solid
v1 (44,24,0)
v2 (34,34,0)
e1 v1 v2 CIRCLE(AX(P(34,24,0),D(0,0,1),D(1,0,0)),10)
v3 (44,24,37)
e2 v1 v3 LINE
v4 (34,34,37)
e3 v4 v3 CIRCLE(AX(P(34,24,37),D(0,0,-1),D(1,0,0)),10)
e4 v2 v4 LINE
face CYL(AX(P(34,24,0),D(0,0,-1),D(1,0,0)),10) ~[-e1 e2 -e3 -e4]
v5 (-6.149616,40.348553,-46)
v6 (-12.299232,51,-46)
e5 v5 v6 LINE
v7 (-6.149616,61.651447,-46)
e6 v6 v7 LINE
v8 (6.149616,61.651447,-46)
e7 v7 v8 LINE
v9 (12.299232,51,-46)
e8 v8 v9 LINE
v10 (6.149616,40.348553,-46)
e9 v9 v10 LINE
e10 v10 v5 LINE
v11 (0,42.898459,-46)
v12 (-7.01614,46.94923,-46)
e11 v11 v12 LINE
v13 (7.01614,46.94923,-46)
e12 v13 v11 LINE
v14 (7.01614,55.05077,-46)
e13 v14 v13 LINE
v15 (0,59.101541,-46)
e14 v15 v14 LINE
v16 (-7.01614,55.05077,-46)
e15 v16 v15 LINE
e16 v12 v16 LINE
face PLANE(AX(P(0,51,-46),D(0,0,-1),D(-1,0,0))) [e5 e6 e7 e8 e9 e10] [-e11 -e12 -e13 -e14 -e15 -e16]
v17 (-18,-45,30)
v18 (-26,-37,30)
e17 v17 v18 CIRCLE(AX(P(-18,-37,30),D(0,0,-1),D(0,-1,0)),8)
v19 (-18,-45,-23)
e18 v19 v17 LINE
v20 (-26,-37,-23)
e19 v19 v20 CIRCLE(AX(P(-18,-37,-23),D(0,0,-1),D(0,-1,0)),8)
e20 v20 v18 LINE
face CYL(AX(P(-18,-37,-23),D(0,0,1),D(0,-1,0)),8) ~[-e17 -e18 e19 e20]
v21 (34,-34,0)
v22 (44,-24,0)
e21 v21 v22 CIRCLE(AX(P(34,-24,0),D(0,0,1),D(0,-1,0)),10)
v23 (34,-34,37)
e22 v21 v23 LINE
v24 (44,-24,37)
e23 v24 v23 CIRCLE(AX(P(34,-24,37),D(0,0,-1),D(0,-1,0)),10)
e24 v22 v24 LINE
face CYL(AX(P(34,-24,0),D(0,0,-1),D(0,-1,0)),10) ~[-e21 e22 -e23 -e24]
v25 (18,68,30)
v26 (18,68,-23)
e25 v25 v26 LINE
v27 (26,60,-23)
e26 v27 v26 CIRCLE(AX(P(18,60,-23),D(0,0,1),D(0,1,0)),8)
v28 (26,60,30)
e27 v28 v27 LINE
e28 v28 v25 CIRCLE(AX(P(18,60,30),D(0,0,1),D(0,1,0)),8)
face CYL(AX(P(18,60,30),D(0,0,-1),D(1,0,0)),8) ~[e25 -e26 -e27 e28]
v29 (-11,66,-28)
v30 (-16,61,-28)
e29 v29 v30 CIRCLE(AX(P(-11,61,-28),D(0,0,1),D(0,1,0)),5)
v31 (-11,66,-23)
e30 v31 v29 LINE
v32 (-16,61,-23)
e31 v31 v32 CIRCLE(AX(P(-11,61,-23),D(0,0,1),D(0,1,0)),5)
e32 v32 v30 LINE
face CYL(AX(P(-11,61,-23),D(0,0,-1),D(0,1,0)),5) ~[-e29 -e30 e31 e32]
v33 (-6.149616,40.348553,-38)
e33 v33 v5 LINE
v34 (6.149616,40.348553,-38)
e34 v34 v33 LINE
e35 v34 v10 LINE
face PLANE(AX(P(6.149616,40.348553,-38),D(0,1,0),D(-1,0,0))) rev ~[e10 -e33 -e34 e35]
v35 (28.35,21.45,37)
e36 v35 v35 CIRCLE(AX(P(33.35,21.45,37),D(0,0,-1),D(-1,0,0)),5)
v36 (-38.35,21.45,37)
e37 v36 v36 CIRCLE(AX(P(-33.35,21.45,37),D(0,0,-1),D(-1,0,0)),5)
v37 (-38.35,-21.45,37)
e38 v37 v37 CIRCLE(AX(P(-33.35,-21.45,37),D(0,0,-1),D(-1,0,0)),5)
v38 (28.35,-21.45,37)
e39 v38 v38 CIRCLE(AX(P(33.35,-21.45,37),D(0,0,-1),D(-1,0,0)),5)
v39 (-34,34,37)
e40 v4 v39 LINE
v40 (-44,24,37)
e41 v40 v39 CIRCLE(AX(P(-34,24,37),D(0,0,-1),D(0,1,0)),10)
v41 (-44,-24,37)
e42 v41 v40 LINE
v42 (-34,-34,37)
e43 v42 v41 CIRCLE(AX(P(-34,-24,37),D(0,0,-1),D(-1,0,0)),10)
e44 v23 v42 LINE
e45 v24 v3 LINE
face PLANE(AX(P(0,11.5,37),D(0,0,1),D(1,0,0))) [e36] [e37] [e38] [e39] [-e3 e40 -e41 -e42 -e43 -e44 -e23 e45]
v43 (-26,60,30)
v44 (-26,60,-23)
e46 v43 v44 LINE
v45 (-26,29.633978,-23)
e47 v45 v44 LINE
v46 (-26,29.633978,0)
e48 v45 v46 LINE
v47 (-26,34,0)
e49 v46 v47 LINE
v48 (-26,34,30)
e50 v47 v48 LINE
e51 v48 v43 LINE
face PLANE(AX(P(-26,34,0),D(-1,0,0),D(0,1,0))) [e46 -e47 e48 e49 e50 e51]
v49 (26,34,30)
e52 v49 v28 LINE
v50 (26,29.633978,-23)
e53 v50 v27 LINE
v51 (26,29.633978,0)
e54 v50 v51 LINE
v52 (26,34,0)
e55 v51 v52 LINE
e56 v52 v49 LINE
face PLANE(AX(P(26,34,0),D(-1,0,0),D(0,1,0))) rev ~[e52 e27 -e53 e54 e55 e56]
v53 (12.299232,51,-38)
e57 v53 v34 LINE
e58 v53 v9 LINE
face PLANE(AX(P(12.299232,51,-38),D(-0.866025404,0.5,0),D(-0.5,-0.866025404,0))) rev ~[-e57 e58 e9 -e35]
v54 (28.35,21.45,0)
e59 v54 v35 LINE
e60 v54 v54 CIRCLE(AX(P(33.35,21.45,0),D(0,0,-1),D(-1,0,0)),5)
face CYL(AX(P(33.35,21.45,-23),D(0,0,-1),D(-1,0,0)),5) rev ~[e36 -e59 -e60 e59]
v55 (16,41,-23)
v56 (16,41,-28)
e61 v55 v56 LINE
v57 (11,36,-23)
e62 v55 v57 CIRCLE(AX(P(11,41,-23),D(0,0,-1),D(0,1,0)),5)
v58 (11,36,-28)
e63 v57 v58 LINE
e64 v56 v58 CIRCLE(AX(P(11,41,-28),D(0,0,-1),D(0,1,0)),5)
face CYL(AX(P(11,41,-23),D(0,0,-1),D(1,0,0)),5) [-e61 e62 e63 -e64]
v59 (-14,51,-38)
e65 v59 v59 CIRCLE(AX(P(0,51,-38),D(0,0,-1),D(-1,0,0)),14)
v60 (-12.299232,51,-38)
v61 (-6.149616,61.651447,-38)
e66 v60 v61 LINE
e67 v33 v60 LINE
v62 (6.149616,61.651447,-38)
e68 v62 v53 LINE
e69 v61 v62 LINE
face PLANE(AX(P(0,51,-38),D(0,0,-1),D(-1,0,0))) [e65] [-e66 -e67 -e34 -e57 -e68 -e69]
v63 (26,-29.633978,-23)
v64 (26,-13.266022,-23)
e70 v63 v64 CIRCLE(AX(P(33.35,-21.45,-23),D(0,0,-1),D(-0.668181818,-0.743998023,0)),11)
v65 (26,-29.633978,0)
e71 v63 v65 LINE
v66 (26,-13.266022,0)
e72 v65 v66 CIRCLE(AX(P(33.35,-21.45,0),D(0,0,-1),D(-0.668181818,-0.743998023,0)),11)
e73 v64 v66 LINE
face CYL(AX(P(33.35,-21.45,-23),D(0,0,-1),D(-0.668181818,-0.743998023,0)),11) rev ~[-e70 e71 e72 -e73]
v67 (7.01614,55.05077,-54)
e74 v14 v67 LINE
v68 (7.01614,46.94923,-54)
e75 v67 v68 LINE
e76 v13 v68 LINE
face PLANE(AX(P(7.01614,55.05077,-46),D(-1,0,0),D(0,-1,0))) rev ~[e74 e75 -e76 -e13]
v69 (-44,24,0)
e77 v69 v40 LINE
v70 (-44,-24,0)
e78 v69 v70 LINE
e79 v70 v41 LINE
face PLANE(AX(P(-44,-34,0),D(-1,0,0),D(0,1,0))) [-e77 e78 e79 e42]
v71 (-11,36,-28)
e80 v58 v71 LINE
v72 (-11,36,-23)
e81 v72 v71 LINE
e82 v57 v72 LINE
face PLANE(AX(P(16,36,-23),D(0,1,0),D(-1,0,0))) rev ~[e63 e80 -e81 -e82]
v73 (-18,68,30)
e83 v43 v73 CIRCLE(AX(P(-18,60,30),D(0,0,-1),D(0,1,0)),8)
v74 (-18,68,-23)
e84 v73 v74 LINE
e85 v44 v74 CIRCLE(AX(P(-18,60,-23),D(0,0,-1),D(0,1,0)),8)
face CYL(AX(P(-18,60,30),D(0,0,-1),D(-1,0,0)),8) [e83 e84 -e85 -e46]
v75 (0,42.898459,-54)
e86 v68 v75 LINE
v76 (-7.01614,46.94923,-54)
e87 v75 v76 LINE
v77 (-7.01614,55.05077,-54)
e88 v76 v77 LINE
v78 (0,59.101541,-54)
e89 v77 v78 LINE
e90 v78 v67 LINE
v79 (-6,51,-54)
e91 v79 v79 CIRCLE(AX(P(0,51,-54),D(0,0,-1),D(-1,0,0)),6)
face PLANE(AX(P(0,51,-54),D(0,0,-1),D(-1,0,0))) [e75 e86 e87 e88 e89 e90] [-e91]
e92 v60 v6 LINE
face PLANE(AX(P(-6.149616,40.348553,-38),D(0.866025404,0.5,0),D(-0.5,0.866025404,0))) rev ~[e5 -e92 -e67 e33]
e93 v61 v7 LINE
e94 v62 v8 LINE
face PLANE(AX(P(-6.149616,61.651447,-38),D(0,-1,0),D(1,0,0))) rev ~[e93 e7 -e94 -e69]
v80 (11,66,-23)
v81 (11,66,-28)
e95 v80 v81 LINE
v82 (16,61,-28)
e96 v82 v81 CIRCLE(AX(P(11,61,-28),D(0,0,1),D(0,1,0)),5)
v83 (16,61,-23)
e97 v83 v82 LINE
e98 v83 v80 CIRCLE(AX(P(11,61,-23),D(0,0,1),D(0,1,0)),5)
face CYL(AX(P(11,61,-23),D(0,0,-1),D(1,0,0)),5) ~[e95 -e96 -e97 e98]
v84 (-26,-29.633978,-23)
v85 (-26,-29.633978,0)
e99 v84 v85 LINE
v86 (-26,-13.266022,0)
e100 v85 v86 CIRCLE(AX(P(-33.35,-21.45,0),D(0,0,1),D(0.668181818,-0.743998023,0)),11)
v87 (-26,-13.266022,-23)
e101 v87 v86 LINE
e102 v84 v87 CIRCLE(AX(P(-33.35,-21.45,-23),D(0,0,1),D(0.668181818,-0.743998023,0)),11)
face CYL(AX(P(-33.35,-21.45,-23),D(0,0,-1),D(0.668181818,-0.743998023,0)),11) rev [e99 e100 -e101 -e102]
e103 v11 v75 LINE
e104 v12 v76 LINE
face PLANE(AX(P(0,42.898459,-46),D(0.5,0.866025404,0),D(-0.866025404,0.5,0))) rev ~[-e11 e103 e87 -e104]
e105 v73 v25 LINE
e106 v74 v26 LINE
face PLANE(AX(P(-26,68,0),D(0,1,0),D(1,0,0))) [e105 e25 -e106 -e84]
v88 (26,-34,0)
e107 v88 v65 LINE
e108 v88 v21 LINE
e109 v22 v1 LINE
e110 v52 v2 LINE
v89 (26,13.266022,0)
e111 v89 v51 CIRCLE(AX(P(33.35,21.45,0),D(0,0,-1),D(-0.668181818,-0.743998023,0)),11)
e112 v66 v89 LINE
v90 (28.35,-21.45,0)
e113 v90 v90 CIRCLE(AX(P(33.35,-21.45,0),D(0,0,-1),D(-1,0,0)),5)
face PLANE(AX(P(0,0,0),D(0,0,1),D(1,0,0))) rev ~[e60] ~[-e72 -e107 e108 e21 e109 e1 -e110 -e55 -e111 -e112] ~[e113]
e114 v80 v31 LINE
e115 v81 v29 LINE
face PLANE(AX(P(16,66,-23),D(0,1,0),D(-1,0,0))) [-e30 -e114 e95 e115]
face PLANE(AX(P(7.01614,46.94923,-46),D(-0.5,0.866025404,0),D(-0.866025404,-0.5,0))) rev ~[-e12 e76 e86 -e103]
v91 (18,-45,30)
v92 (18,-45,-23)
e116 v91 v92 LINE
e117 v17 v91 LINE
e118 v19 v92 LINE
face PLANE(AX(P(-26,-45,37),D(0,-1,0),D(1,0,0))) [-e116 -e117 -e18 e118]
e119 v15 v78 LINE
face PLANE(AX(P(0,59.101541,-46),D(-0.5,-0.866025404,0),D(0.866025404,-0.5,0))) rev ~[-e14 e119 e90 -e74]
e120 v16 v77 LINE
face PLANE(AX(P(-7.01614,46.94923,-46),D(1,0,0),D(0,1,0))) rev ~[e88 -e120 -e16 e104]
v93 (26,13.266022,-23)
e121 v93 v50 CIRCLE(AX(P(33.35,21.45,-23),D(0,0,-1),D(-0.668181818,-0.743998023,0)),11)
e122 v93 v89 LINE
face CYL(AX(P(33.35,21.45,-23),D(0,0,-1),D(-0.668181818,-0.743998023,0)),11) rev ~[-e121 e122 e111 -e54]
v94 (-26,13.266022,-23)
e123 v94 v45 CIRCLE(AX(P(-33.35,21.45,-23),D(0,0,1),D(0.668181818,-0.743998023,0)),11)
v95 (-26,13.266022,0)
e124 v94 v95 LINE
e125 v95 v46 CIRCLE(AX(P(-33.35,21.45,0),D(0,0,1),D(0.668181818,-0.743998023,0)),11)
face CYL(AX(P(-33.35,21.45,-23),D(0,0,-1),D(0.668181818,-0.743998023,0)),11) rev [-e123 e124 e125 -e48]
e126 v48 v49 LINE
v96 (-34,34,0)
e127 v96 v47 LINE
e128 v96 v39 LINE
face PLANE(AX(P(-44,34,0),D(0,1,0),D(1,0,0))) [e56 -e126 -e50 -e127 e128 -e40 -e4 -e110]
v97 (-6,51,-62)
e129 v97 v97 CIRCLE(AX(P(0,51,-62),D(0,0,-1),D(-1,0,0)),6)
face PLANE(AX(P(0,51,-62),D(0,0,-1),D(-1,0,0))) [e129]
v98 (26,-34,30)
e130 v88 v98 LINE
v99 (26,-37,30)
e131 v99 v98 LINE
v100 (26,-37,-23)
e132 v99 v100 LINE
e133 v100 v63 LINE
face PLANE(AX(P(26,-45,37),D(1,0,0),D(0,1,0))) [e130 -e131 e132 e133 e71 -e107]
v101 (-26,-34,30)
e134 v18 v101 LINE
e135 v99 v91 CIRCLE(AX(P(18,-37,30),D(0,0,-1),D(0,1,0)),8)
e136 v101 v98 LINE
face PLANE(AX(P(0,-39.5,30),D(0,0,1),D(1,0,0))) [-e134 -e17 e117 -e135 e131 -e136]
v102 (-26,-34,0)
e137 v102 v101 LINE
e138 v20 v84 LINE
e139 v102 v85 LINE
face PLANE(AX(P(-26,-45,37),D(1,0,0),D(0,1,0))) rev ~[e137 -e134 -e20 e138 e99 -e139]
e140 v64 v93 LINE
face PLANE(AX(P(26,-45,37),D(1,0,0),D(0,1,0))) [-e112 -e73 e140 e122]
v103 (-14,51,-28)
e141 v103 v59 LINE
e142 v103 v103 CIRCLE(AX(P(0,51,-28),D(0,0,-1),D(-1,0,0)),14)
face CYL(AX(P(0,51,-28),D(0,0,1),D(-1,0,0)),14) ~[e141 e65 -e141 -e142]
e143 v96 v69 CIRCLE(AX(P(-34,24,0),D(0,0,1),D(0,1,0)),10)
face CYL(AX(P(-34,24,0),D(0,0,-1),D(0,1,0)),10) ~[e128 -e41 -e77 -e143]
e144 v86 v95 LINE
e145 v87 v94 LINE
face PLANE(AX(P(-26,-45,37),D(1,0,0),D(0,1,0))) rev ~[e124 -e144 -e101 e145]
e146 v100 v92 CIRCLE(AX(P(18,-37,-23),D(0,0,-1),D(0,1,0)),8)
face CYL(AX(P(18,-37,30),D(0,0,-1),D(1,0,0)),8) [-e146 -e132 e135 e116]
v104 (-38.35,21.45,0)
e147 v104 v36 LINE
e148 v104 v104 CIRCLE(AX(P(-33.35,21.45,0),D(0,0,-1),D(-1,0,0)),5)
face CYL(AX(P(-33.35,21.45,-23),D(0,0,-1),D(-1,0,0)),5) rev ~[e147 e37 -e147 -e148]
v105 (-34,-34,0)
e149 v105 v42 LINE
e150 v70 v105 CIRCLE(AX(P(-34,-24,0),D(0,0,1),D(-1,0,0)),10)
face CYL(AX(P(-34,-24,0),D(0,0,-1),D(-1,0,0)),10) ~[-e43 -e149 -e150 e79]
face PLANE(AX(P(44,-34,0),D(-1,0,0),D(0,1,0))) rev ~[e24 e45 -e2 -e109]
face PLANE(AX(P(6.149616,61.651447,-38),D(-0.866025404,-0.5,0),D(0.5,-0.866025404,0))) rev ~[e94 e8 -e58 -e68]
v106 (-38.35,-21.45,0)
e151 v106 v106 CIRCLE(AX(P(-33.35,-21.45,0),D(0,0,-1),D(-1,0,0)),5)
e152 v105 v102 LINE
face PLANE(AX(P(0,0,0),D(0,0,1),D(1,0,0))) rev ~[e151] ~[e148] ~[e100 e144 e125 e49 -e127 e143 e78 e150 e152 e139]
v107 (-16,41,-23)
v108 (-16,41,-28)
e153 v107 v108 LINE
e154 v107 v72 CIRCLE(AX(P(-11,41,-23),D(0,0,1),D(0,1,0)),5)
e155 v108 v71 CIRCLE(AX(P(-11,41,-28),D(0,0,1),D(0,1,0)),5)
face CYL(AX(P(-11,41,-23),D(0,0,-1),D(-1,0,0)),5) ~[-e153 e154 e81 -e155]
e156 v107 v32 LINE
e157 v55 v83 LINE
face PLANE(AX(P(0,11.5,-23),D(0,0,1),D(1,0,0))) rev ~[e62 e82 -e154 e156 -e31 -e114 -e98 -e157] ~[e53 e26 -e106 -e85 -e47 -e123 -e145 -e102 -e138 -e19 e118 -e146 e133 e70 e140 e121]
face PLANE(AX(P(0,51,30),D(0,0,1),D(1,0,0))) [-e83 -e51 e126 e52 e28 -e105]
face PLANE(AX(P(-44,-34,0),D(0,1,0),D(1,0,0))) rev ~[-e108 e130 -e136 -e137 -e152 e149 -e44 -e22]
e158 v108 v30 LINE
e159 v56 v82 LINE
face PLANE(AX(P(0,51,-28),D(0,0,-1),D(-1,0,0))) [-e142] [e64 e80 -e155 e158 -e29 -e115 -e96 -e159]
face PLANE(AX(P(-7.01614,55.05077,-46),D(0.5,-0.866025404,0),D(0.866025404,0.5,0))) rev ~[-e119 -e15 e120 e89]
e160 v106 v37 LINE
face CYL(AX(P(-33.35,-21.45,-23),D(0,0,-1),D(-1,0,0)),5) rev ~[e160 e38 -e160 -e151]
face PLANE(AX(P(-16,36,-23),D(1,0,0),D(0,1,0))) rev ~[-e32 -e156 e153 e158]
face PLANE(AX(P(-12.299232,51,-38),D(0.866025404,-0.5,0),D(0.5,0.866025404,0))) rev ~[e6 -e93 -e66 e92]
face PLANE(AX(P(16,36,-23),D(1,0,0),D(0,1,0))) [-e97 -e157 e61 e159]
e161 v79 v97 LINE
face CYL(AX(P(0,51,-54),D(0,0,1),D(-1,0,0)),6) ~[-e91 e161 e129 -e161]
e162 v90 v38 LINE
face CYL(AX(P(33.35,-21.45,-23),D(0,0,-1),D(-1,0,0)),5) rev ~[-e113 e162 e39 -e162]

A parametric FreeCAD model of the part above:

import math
import FreeCAD as App
import Part
import Sketcher
Q = App.Units.Quantity


def edges_at(feature, points):
    """Names of the edges that pass closest to the given points."""
    edges = feature.Shape.Edges
    near = lambda p: min(range(len(edges)), key=lambda i: edges[i].distToShape(Part.Vertex(*p))[0])
    return sorted({f"Edge{near(p) + 1}" for p in points})

doc = App.newDocument("Part")
body = doc.addObject("PartDesign::Body", "Body")

# Sketch on XY plane
sketch1 = body.newObject("Sketcher::SketchObject", "Sketch")
sketch1.AttachmentSupport = (doc.getObject("XY_Plane"), [""])
sketch1.MapMode = "FlatFace"
sketch1.addGeometry(Part.LineSegment(App.Vector(-44, 34, 0), App.Vector(-44, -34, 0)), False)
sketch1.addGeometry(Part.LineSegment(App.Vector(-44, -34, 0), App.Vector(44, -34, 0)), False)
sketch1.addGeometry(Part.LineSegment(App.Vector(44, -34, 0), App.Vector(44, 34, 0)), False)
sketch1.addGeometry(Part.LineSegment(App.Vector(44, 34, 0), App.Vector(-44, 34, 0)), False)
sketch1.addConstraint(Sketcher.Constraint("Coincident", 0, 2, 1, 1))
sketch1.addConstraint(Sketcher.Constraint("Coincident", 1, 2, 2, 1))
sketch1.addConstraint(Sketcher.Constraint("Coincident", 2, 2, 3, 1))
sketch1.addConstraint(Sketcher.Constraint("Coincident", 3, 2, 0, 1))
sketch1.addConstraint(Sketcher.Constraint("Vertical", 0))
sketch1.addConstraint(Sketcher.Constraint("Horizontal", 1))
sketch1.addConstraint(Sketcher.Constraint("Vertical", 2))
sketch1.addConstraint(Sketcher.Constraint("Horizontal", 3))
sketch1.addConstraint(Sketcher.Constraint("Symmetric", 0, 2, 2, 2, -1, 1))
sketch1.addConstraint(Sketcher.Constraint("DistanceX", 1, 1, 1, 2, 88.0))
sketch1.addConstraint(Sketcher.Constraint("DistanceY", 0, 2, 0, 1, 68.0))
pad1 = body.newObject("PartDesign::Pad", "Pad")
pad1.Profile = sketch1
pad1.Length = 37

# Sketch on XY plane
sketch2 = body.newObject("Sketcher::SketchObject", "Sketch001")
sketch2.AttachmentSupport = (doc.getObject("XY_Plane"), [""])
sketch2.MapMode = "FlatFace"
sketch2.AttachmentOffset = App.Placement(App.Vector(0, 0, 37), App.Rotation())
sketch2.addGeometry(Part.LineSegment(App.Vector(-26, 68, 0), App.Vector(-26, -45, 0)), False)
sketch2.addGeometry(Part.LineSegment(App.Vector(-26, -45, 0), App.Vector(26, -45, 0)), False)
sketch2.addGeometry(Part.LineSegment(App.Vector(26, -45, 0), App.Vector(26, 68, 0)), False)
sketch2.addGeometry(Part.LineSegment(App.Vector(26, 68, 0), App.Vector(-26, 68, 0)), False)
sketch2.addConstraint(Sketcher.Constraint("Coincident", 0, 2, 1, 1))
sketch2.addConstraint(Sketcher.Constraint("Coincident", 1, 2, 2, 1))
sketch2.addConstraint(Sketcher.Constraint("Coincident", 2, 2, 3, 1))
sketch2.addConstraint(Sketcher.Constraint("Coincident", 3, 2, 0, 1))
sketch2.addConstraint(Sketcher.Constraint("Vertical", 0))
sketch2.addConstraint(Sketcher.Constraint("Horizontal", 1))
sketch2.addConstraint(Sketcher.Constraint("Vertical", 2))
sketch2.addConstraint(Sketcher.Constraint("Horizontal", 3))
sketch2.addConstraint(Sketcher.Constraint("DistanceX", 1, 1, 1, 2, 52.0))
sketch2.addConstraint(Sketcher.Constraint("DistanceY", 0, 2, 0, 1, 113.0))
sketch2.addConstraint(Sketcher.Constraint("DistanceX", 0, 2, -1, 1, 26.0))
sketch2.addConstraint(Sketcher.Constraint("DistanceY", 0, 2, -1, 1, 45.0))
pad2 = body.newObject("PartDesign::Pad", "Pad001")
pad2.Profile = sketch2
pad2.Length = 60
pad2.Reversed = True

# Sketch on XY plane
sketch3 = body.newObject("Sketcher::SketchObject", "Sketch002")
sketch3.AttachmentSupport = (doc.getObject("XY_Plane"), [""])
sketch3.MapMode = "FlatFace"
sketch3.AttachmentOffset = App.Placement(App.Vector(0, 0, -23), App.Rotation())
sketch3.addGeometry(Part.Circle(App.Vector(33.35, 21.45, 0), App.Vector(0, 0, 1), 5), False)
sketch3.addGeometry(Part.Circle(App.Vector(-33.35, 21.45, 0), App.Vector(0, 0, 1), 5), False)
sketch3.addGeometry(Part.Circle(App.Vector(-33.35, -21.45, 0), App.Vector(0, 0, 1), 5), False)
sketch3.addGeometry(Part.Circle(App.Vector(33.35, -21.45, 0), App.Vector(0, 0, 1), 5), False)
sketch3.addConstraint(Sketcher.Constraint("Equal", 0, 1))
sketch3.addConstraint(Sketcher.Constraint("Equal", 1, 2))
sketch3.addConstraint(Sketcher.Constraint("Equal", 2, 3))
sketch3.addConstraint(Sketcher.Constraint("Symmetric", 0, 3, 2, 3, -1, 1))
sketch3.addConstraint(Sketcher.Constraint("Symmetric", 1, 3, 3, 3, -1, 1))
sketch3.addConstraint(Sketcher.Constraint("Symmetric", 0, 3, 1, 3, -2))
sketch3.addConstraint(Sketcher.Constraint("Diameter", 0, 10.0))
sketch3.addConstraint(Sketcher.Constraint("DistanceX", 1, 3, 0, 3, 66.7))
sketch3.addConstraint(Sketcher.Constraint("DistanceY", 2, 3, 1, 3, 42.9))
pocket1 = body.newObject("PartDesign::Pocket", "Pocket")
pocket1.Profile = sketch3
pocket1.Length = 60
pocket1.Reversed = True

# Sketch on XY plane
sketch4 = body.newObject("Sketcher::SketchObject", "Sketch003")
sketch4.AttachmentSupport = (doc.getObject("XY_Plane"), [""])
sketch4.MapMode = "FlatFace"
sketch4.AttachmentOffset = App.Placement(App.Vector(0, 0, -23), App.Rotation())
sketch4.addGeometry(Part.LineSegment(App.Vector(26, 29.633978, 0), App.Vector(26, 13.266022, 0)), False)
sketch4.addGeometry(Part.ArcOfCircle(Part.Circle(App.Vector(33.35, 21.45, 0), App.Vector(0, 0, 1), 11), math.radians(131.926891), math.radians(228.073109)), False)
sketch4.addGeometry(Part.LineSegment(App.Vector(-26, 13.266022, 0), App.Vector(-26, 29.633978, 0)), False)
sketch4.addGeometry(Part.ArcOfCircle(Part.Circle(App.Vector(-33.35, 21.45, 0), App.Vector(0, 0, 1), 11), math.radians(-48.073109), math.radians(48.073109)), False)
sketch4.addGeometry(Part.LineSegment(App.Vector(-26, -29.633978, 0), App.Vector(-26, -13.266022, 0)), False)
sketch4.addGeometry(Part.ArcOfCircle(Part.Circle(App.Vector(-33.35, -21.45, 0), App.Vector(0, 0, 1), 11), math.radians(-48.073109), math.radians(48.073109)), False)
sketch4.addGeometry(Part.LineSegment(App.Vector(26, -13.266022, 0), App.Vector(26, -29.633978, 0)), False)
sketch4.addGeometry(Part.ArcOfCircle(Part.Circle(App.Vector(33.35, -21.45, 0), App.Vector(0, 0, 1), 11), math.radians(131.926891), math.radians(228.073109)), False)
sketch4.addConstraint(Sketcher.Constraint("Coincident", 0, 1, 1, 1))
sketch4.addConstraint(Sketcher.Constraint("Coincident", 1, 2, 0, 2))
sketch4.addConstraint(Sketcher.Constraint("Coincident", 2, 1, 3, 1))
sketch4.addConstraint(Sketcher.Constraint("Coincident", 3, 2, 2, 2))
sketch4.addConstraint(Sketcher.Constraint("Coincident", 4, 1, 5, 1))
sketch4.addConstraint(Sketcher.Constraint("Coincident", 5, 2, 4, 2))
sketch4.addConstraint(Sketcher.Constraint("Coincident", 6, 1, 7, 1))
sketch4.addConstraint(Sketcher.Constraint("Coincident", 7, 2, 6, 2))
sketch4.addConstraint(Sketcher.Constraint("Vertical", 0))
sketch4.addConstraint(Sketcher.Constraint("Vertical", 2))
sketch4.addConstraint(Sketcher.Constraint("Vertical", 4))
sketch4.addConstraint(Sketcher.Constraint("Vertical", 6))
sketch4.addConstraint(Sketcher.Constraint("Equal", 1, 3))
sketch4.addConstraint(Sketcher.Constraint("Equal", 3, 5))
sketch4.addConstraint(Sketcher.Constraint("Equal", 5, 7))
sketch4.addConstraint(Sketcher.Constraint("Symmetric", 1, 3, 5, 3, -1, 1))
sketch4.addConstraint(Sketcher.Constraint("Symmetric", 3, 3, 7, 3, -1, 1))
sketch4.addConstraint(Sketcher.Constraint("Symmetric", 1, 3, 3, 3, -2))
sketch4.addConstraint(Sketcher.Constraint("Horizontal", 1, 2, 2, 1))
sketch4.addConstraint(Sketcher.Constraint("Horizontal", 5, 2, 6, 1))
sketch4.addConstraint(Sketcher.Constraint("Vertical", 3, 2, 4, 1))
sketch4.addConstraint(Sketcher.Constraint("Radius", 1, 11.0))
sketch4.addConstraint(Sketcher.Constraint("DistanceX", -1, 1, 0, 1, 26.0))
sketch4.addConstraint(Sketcher.Constraint("DistanceX", 3, 3, 1, 3, 66.7))
sketch4.addConstraint(Sketcher.Constraint("DistanceY", 5, 3, 3, 3, 42.9))
pocket2 = body.newObject("PartDesign::Pocket", "Pocket001")
pocket2.Profile = sketch4
pocket2.Length = 23
pocket2.Reversed = True

# Sketch on XY plane
sketch5 = body.newObject("Sketcher::SketchObject", "Sketch004")
sketch5.AttachmentSupport = (doc.getObject("XY_Plane"), [""])
sketch5.MapMode = "FlatFace"
sketch5.addGeometry(Part.LineSegment(App.Vector(60.528, 84.528, 0), App.Vector(60.528, -61.528, 0)), False)
sketch5.addGeometry(Part.LineSegment(App.Vector(60.528, -61.528, 0), App.Vector(-60.528, -61.528, 0)), False)
sketch5.addGeometry(Part.LineSegment(App.Vector(-60.528, -61.528, 0), App.Vector(-60.528, 84.528, 0)), False)
sketch5.addGeometry(Part.LineSegment(App.Vector(-60.528, 84.528, 0), App.Vector(60.528, 84.528, 0)), False)
sketch5.addGeometry(Part.ArcOfCircle(Part.Circle(App.Vector(34, 24, 0), App.Vector(0, 0, 1), 10), math.radians(0), math.radians(90)), False)
sketch5.addGeometry(Part.LineSegment(App.Vector(34, 34, 0), App.Vector(-34, 34, 0)), False)
sketch5.addGeometry(Part.ArcOfCircle(Part.Circle(App.Vector(-34, 24, 0), App.Vector(0, 0, 1), 10), math.radians(90), math.radians(180)), False)
sketch5.addGeometry(Part.LineSegment(App.Vector(-44, 24, 0), App.Vector(-44, -24, 0)), False)
sketch5.addGeometry(Part.ArcOfCircle(Part.Circle(App.Vector(-34, -24, 0), App.Vector(0, 0, 1), 10), math.radians(180), math.radians(270)), False)
sketch5.addGeometry(Part.LineSegment(App.Vector(-34, -34, 0), App.Vector(34, -34, 0)), False)
sketch5.addGeometry(Part.ArcOfCircle(Part.Circle(App.Vector(34, -24, 0), App.Vector(0, 0, 1), 10), math.radians(-90), math.radians(0)), False)
sketch5.addGeometry(Part.LineSegment(App.Vector(44, -24, 0), App.Vector(44, 24, 0)), False)
sketch5.addConstraint(Sketcher.Constraint("Coincident", 0, 2, 1, 1))
sketch5.addConstraint(Sketcher.Constraint("Coincident", 1, 2, 2, 1))
sketch5.addConstraint(Sketcher.Constraint("Coincident", 2, 2, 3, 1))
sketch5.addConstraint(Sketcher.Constraint("Coincident", 3, 2, 0, 1))
sketch5.addConstraint(Sketcher.Constraint("Tangent", 4, 2, 5, 1))
sketch5.addConstraint(Sketcher.Constraint("Tangent", 5, 2, 6, 1))
sketch5.addConstraint(Sketcher.Constraint("Tangent", 6, 2, 7, 1))
sketch5.addConstraint(Sketcher.Constraint("Tangent", 7, 2, 8, 1))
sketch5.addConstraint(Sketcher.Constraint("Tangent", 8, 2, 9, 1))
sketch5.addConstraint(Sketcher.Constraint("Tangent", 9, 2, 10, 1))
sketch5.addConstraint(Sketcher.Constraint("Tangent", 10, 2, 11, 1))
sketch5.addConstraint(Sketcher.Constraint("Tangent", 11, 2, 4, 1))
sketch5.addConstraint(Sketcher.Constraint("Vertical", 0))
sketch5.addConstraint(Sketcher.Constraint("Horizontal", 1))
sketch5.addConstraint(Sketcher.Constraint("Vertical", 2))
sketch5.addConstraint(Sketcher.Constraint("Horizontal", 3))
sketch5.addConstraint(Sketcher.Constraint("Horizontal", 5))
sketch5.addConstraint(Sketcher.Constraint("Vertical", 7))
sketch5.addConstraint(Sketcher.Constraint("Horizontal", 9))
sketch5.addConstraint(Sketcher.Constraint("Vertical", 11))
sketch5.addConstraint(Sketcher.Constraint("Equal", 4, 6))
sketch5.addConstraint(Sketcher.Constraint("Equal", 6, 8))
sketch5.addConstraint(Sketcher.Constraint("Equal", 8, 10))
sketch5.addConstraint(Sketcher.Constraint("Symmetric", 4, 3, 8, 3, -1, 1))
sketch5.addConstraint(Sketcher.Constraint("Radius", 4, 10.0))
sketch5.addConstraint(Sketcher.Constraint("DistanceX", 5, 2, 5, 1, 68.0))
sketch5.addConstraint(Sketcher.Constraint("DistanceY", 7, 2, 7, 1, 48.0))
sketch5.addConstraint(Sketcher.Constraint("DistanceX", 1, 2, 1, 1, 121.056))
sketch5.addConstraint(Sketcher.Constraint("DistanceY", 0, 2, 0, 1, 146.056))
sketch5.addConstraint(Sketcher.Constraint("DistanceX", -1, 1, 0, 2, 60.528))
sketch5.addConstraint(Sketcher.Constraint("DistanceY", 0, 2, -1, 1, 61.528))
pocket3 = body.newObject("PartDesign::Pocket", "Pocket002")
pocket3.Profile = sketch5
pocket3.Type = "ThroughAll"
pocket3.Reversed = True

# Sketch on XY plane
sketch6 = body.newObject("Sketcher::SketchObject", "Sketch005")
sketch6.AttachmentSupport = (doc.getObject("XY_Plane"), [""])
sketch6.MapMode = "FlatFace"
sketch6.addGeometry(Part.LineSegment(App.Vector(-26, 68, 0), App.Vector(-26, 34, 0)), False)
sketch6.addGeometry(Part.LineSegment(App.Vector(-26, 34, 0), App.Vector(26, 34, 0)), False)
sketch6.addGeometry(Part.LineSegment(App.Vector(26, 34, 0), App.Vector(26, 68, 0)), False)
sketch6.addGeometry(Part.LineSegment(App.Vector(26, 68, 0), App.Vector(-26, 68, 0)), False)
sketch6.addGeometry(Part.LineSegment(App.Vector(-26, -34, 0), App.Vector(-26, -45, 0)), False)
sketch6.addGeometry(Part.LineSegment(App.Vector(-26, -45, 0), App.Vector(26, -45, 0)), False)
sketch6.addGeometry(Part.LineSegment(App.Vector(26, -45, 0), App.Vector(26, -34, 0)), False)
sketch6.addGeometry(Part.LineSegment(App.Vector(26, -34, 0), App.Vector(-26, -34, 0)), False)
sketch6.addConstraint(Sketcher.Constraint("Coincident", 0, 2, 1, 1))
sketch6.addConstraint(Sketcher.Constraint("Coincident", 1, 2, 2, 1))
sketch6.addConstraint(Sketcher.Constraint("Coincident", 2, 2, 3, 1))
sketch6.addConstraint(Sketcher.Constraint("Coincident", 3, 2, 0, 1))
sketch6.addConstraint(Sketcher.Constraint("Coincident", 4, 2, 5, 1))
sketch6.addConstraint(Sketcher.Constraint("Coincident", 5, 2, 6, 1))
sketch6.addConstraint(Sketcher.Constraint("Coincident", 6, 2, 7, 1))
sketch6.addConstraint(Sketcher.Constraint("Coincident", 7, 2, 4, 1))
sketch6.addConstraint(Sketcher.Constraint("Vertical", 0))
sketch6.addConstraint(Sketcher.Constraint("Horizontal", 1))
sketch6.addConstraint(Sketcher.Constraint("Vertical", 2))
sketch6.addConstraint(Sketcher.Constraint("Horizontal", 3))
sketch6.addConstraint(Sketcher.Constraint("Vertical", 4))
sketch6.addConstraint(Sketcher.Constraint("Horizontal", 5))
sketch6.addConstraint(Sketcher.Constraint("Vertical", 6))
sketch6.addConstraint(Sketcher.Constraint("Horizontal", 7))
sketch6.addConstraint(Sketcher.Constraint("Symmetric", 0, 2, 6, 2, -1, 1))
sketch6.addConstraint(Sketcher.Constraint("Vertical", 3, 2, 4, 2))
sketch6.addConstraint(Sketcher.Constraint("Vertical", 2, 2, 5, 2))
sketch6.addConstraint(Sketcher.Constraint("DistanceX", 1, 1, 1, 2, 52.0))
sketch6.addConstraint(Sketcher.Constraint("DistanceY", 0, 2, 0, 1, 34.0))
sketch6.addConstraint(Sketcher.Constraint("DistanceY", 4, 2, 4, 1, 11.0))
sketch6.addConstraint(Sketcher.Constraint("DistanceY", -1, 1, 0, 2, 34.0))
pad3 = body.newObject("PartDesign::Pad", "Pad002")
pad3.Profile = sketch6
pad3.Length = 30
doc.recompute()

fillet = body.newObject("PartDesign::Fillet", "Fillet")
fillet.Base = (pad3, edges_at(pad3, [
    (-26, -45, 3.5),
    (26, 68, 3.5),
    (-26, 68, 3.5),
    (26, -45, 3.5),
]))
fillet.Radius = 8

# Sketch on XY plane
sketch7 = body.newObject("Sketcher::SketchObject", "Sketch006")
sketch7.AttachmentSupport = (doc.getObject("XY_Plane"), [""])
sketch7.MapMode = "FlatFace"
sketch7.AttachmentOffset = App.Placement(App.Vector(0, 0, -23), App.Rotation())
sketch7.addGeometry(Part.LineSegment(App.Vector(16, 66, 0), App.Vector(16, 36, 0)), False)
sketch7.addGeometry(Part.LineSegment(App.Vector(16, 36, 0), App.Vector(-16, 36, 0)), False)
sketch7.addGeometry(Part.LineSegment(App.Vector(-16, 36, 0), App.Vector(-16, 66, 0)), False)
sketch7.addGeometry(Part.LineSegment(App.Vector(-16, 66, 0), App.Vector(16, 66, 0)), False)
sketch7.addConstraint(Sketcher.Constraint("Coincident", 0, 2, 1, 1))
sketch7.addConstraint(Sketcher.Constraint("Coincident", 1, 2, 2, 1))
sketch7.addConstraint(Sketcher.Constraint("Coincident", 2, 2, 3, 1))
sketch7.addConstraint(Sketcher.Constraint("Coincident", 3, 2, 0, 1))
sketch7.addConstraint(Sketcher.Constraint("Vertical", 0))
sketch7.addConstraint(Sketcher.Constraint("Horizontal", 1))
sketch7.addConstraint(Sketcher.Constraint("Vertical", 2))
sketch7.addConstraint(Sketcher.Constraint("Horizontal", 3))
sketch7.addConstraint(Sketcher.Constraint("DistanceX", 1, 2, 1, 1, 32.0))
sketch7.addConstraint(Sketcher.Constraint("DistanceY", 0, 2, 0, 1, 30.0))
sketch7.addConstraint(Sketcher.Constraint("DistanceX", -1, 1, 0, 2, 16.0))
sketch7.addConstraint(Sketcher.Constraint("DistanceY", -1, 1, 0, 2, 36.0))
pad4 = body.newObject("PartDesign::Pad", "Pad003")
pad4.Profile = sketch7
pad4.Length = 5
pad4.Reversed = True

# Sketch on XY plane
sketch8 = body.newObject("Sketcher::SketchObject", "Sketch007")
sketch8.AttachmentSupport = (doc.getObject("XY_Plane"), [""])
sketch8.MapMode = "FlatFace"
sketch8.AttachmentOffset = App.Placement(App.Vector(0, 0, -28), App.Rotation())
sketch8.addGeometry(Part.Circle(App.Vector(0, 51, 0), App.Vector(0, 0, 1), 14), False)
sketch8.addConstraint(Sketcher.Constraint("PointOnObject", 0, 3, -2))
sketch8.addConstraint(Sketcher.Constraint("Diameter", 0, 28.0))
sketch8.addConstraint(Sketcher.Constraint("DistanceY", -1, 1, 0, 3, 51.0))
pad5 = body.newObject("PartDesign::Pad", "Pad004")
pad5.Profile = sketch8
pad5.Length = 10
pad5.Reversed = True

# Sketch on XY plane
sketch9 = body.newObject("Sketcher::SketchObject", "Sketch008")
sketch9.AttachmentSupport = (doc.getObject("XY_Plane"), [""])
sketch9.MapMode = "FlatFace"
sketch9.AttachmentOffset = App.Placement(App.Vector(0, 0, -38), App.Rotation())
sketch9.addGeometry(Part.LineSegment(App.Vector(6.149616, 61.651447, 0), App.Vector(12.299232, 51, 0)), False)
sketch9.addGeometry(Part.LineSegment(App.Vector(12.299232, 51, 0), App.Vector(6.149616, 40.348553, 0)), False)
sketch9.addGeometry(Part.LineSegment(App.Vector(6.149616, 40.348553, 0), App.Vector(-6.149616, 40.348553, 0)), False)
sketch9.addGeometry(Part.LineSegment(App.Vector(-6.149616, 40.348553, 0), App.Vector(-12.299232, 51, 0)), False)
sketch9.addGeometry(Part.LineSegment(App.Vector(-12.299232, 51, 0), App.Vector(-6.149616, 61.651447, 0)), False)
sketch9.addGeometry(Part.LineSegment(App.Vector(-6.149616, 61.651447, 0), App.Vector(6.149616, 61.651447, 0)), False)
sketch9.addConstraint(Sketcher.Constraint("Coincident", 0, 2, 1, 1))
sketch9.addConstraint(Sketcher.Constraint("Coincident", 1, 2, 2, 1))
sketch9.addConstraint(Sketcher.Constraint("Coincident", 2, 2, 3, 1))
sketch9.addConstraint(Sketcher.Constraint("Coincident", 3, 2, 4, 1))
sketch9.addConstraint(Sketcher.Constraint("Coincident", 4, 2, 5, 1))
sketch9.addConstraint(Sketcher.Constraint("Coincident", 5, 2, 0, 1))
sketch9.addConstraint(Sketcher.Constraint("Horizontal", 2))
sketch9.addConstraint(Sketcher.Constraint("Horizontal", 5))
sketch9.addConstraint(Sketcher.Constraint("Symmetric", 0, 2, 3, 2, -2))
sketch9.addConstraint(Sketcher.Constraint("Parallel", 0, 3))
sketch9.addConstraint(Sketcher.Constraint("Parallel", 1, 4))
sketch9.addConstraint(Sketcher.Constraint("Vertical", 2, 2, 4, 2))
sketch9.addConstraint(Sketcher.Constraint("Vertical", 1, 2, 5, 2))
sketch9.addConstraint(Sketcher.Constraint("Angle", 0, Q("-60 deg")))
sketch9.addConstraint(Sketcher.Constraint("DistanceY", -1, 1, 0, 2, 51.0))
sketch9.addConstraint(Sketcher.Constraint("DistanceX", 2, 2, 2, 1, 12.299232))
sketch9.addConstraint(Sketcher.Constraint("Distance", 0, 12.299232))
pad6 = body.newObject("PartDesign::Pad", "Pad005")
pad6.Profile = sketch9
pad6.Length = 8
pad6.Reversed = True
doc.recompute()

fillet2 = body.newObject("PartDesign::Fillet", "Fillet001")
fillet2.Base = (pad6, edges_at(pad6, [
    (16, 66, -25.5),
    (16, 36, -25.5),
    (-16, 36, -25.5),
    (-16, 66, -25.5),
]))
fillet2.Radius = 5

# Sketch on XY plane
sketch10 = body.newObject("Sketcher::SketchObject", "Sketch009")
sketch10.AttachmentSupport = (doc.getObject("XY_Plane"), [""])
sketch10.MapMode = "FlatFace"
sketch10.AttachmentOffset = App.Placement(App.Vector(0, 0, -46), App.Rotation())
sketch10.addGeometry(Part.LineSegment(App.Vector(0, 42.898459, 0), App.Vector(-7.01614, 46.94923, 0)), False)
sketch10.addGeometry(Part.LineSegment(App.Vector(-7.01614, 46.94923, 0), App.Vector(-7.01614, 55.05077, 0)), False)
sketch10.addGeometry(Part.LineSegment(App.Vector(-7.01614, 55.05077, 0), App.Vector(0, 59.101541, 0)), False)
sketch10.addGeometry(Part.LineSegment(App.Vector(0, 59.101541, 0), App.Vector(7.01614, 55.05077, 0)), False)
sketch10.addGeometry(Part.LineSegment(App.Vector(7.01614, 55.05077, 0), App.Vector(7.01614, 46.94923, 0)), False)
sketch10.addGeometry(Part.LineSegment(App.Vector(7.01614, 46.94923, 0), App.Vector(0, 42.898459, 0)), False)
sketch10.addConstraint(Sketcher.Constraint("Coincident", 0, 2, 1, 1))
sketch10.addConstraint(Sketcher.Constraint("Coincident", 1, 2, 2, 1))
sketch10.addConstraint(Sketcher.Constraint("Coincident", 2, 2, 3, 1))
sketch10.addConstraint(Sketcher.Constraint("Coincident", 3, 2, 4, 1))
sketch10.addConstraint(Sketcher.Constraint("Coincident", 4, 2, 5, 1))
sketch10.addConstraint(Sketcher.Constraint("Coincident", 5, 2, 0, 1))
sketch10.addConstraint(Sketcher.Constraint("Vertical", 1))
sketch10.addConstraint(Sketcher.Constraint("Vertical", 4))
sketch10.addConstraint(Sketcher.Constraint("Symmetric", 1, 2, 3, 2, -2))
sketch10.addConstraint(Sketcher.Constraint("PointOnObject", 2, 2, -2))
sketch10.addConstraint(Sketcher.Constraint("PointOnObject", 5, 2, -2))
sketch10.addConstraint(Sketcher.Constraint("Parallel", 0, 3))
sketch10.addConstraint(Sketcher.Constraint("Parallel", 2, 5))
sketch10.addConstraint(Sketcher.Constraint("Angle", 0, Q("150 deg")))
sketch10.addConstraint(Sketcher.Constraint("DistanceY", 1, 1, 1, 2, 8.101541))
sketch10.addConstraint(Sketcher.Constraint("Distance", 0, 8.101541))
sketch10.addConstraint(Sketcher.Constraint("DistanceY", -1, 1, 0, 2, 46.94923))
pad7 = body.newObject("PartDesign::Pad", "Pad006")
pad7.Profile = sketch10
pad7.Length = 8
pad7.Reversed = True

# Sketch on XY plane
sketch11 = body.newObject("Sketcher::SketchObject", "Sketch010")
sketch11.AttachmentSupport = (doc.getObject("XY_Plane"), [""])
sketch11.MapMode = "FlatFace"
sketch11.AttachmentOffset = App.Placement(App.Vector(0, 0, -54), App.Rotation())
sketch11.addGeometry(Part.Circle(App.Vector(0, 51, 0), App.Vector(0, 0, 1), 6), False)
sketch11.addConstraint(Sketcher.Constraint("PointOnObject", 0, 3, -2))
sketch11.addConstraint(Sketcher.Constraint("Diameter", 0, 12.0))
sketch11.addConstraint(Sketcher.Constraint("DistanceY", -1, 1, 0, 3, 51.0))
pad8 = body.newObject("PartDesign::Pad", "Pad007")
pad8.Profile = sketch11
pad8.Length = 8
pad8.Reversed = True

doc.recompute()
